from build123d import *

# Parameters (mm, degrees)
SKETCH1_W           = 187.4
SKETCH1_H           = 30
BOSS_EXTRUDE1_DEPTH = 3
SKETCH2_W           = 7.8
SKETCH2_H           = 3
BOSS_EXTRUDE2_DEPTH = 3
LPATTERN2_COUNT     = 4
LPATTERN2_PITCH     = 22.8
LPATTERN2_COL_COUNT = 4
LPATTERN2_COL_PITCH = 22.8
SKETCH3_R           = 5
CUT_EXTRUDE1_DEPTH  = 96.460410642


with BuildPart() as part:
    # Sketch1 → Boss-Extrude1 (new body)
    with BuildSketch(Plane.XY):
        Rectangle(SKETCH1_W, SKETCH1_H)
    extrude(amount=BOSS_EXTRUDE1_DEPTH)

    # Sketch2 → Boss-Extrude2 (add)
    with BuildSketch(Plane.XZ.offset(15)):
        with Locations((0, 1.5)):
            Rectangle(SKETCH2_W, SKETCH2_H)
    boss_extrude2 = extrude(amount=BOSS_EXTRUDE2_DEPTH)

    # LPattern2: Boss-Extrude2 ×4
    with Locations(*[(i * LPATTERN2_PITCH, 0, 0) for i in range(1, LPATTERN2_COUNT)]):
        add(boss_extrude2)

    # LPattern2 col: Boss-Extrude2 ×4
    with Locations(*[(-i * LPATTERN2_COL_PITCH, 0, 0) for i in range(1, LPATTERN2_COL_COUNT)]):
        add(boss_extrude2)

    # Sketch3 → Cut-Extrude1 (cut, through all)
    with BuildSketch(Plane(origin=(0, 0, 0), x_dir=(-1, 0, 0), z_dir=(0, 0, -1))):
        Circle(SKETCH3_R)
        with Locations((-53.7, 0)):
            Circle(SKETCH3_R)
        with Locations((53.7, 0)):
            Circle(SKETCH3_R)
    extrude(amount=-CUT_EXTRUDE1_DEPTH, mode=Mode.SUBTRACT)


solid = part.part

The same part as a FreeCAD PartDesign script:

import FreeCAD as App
import Part
import Sketcher

V = App.Vector


def add_polygon(sketch, points):
    """Adds a closed chain of lines whose ends are joined by coincident constraints."""
    first, n = sketch.GeometryCount, len(points)
    for a, b in zip(points, points[1:] + points[:1]):
        sketch.addGeometry(Part.LineSegment(App.Vector(*a, 0), App.Vector(*b, 0)), False)
    for i in range(n):
        sketch.addConstraint(Sketcher.Constraint("Coincident", first + i, 2, first + (i + 1) % n, 1))

doc = App.newDocument("Part")
body = doc.addObject("PartDesign::Body", "Body")

# Sketch on XY plane
sketch1 = body.newObject("Sketcher::SketchObject", "Sketch")
sketch1.AttachmentSupport = (doc.getObject("XY_Plane"), [""])
sketch1.MapMode = "FlatFace"
add_polygon(sketch1, [(-94, 15), (-94, -15), (94, -15), (94, 15)])  # lines 0-3
sketch1.addConstraint([
    Sketcher.Constraint("Vertical", 0),
    Sketcher.Constraint("Horizontal", 1),
    Sketcher.Constraint("Vertical", 2),
    Sketcher.Constraint("Horizontal", 3),
    Sketcher.Constraint("Symmetric", 0, 2, 2, 2, -1, 1),
    Sketcher.Constraint("DistanceY", 0, 2, 0, 1, 30.0),
    Sketcher.Constraint("DistanceX", 1, 1, 1, 2, 187.4),
])
pad1 = body.newObject("PartDesign::Pad", "Pad")
pad1.Profile = sketch1
pad1.Length = 3

# Sketch on XZ plane
sketch2 = body.newObject("Sketcher::SketchObject", "Sketch001")
sketch2.AttachmentSupport = (doc.getObject("XZ_Plane"), [""])
sketch2.MapMode = "FlatFace"
sketch2.AttachmentOffset = App.Placement(V(0, 0, 15), App.Rotation())
add_polygon(sketch2, [(-3.9, 3), (-3.9, 0), (3.9, 0), (3.9, 3)])  # lines 0-3
sketch2.addConstraint([
    Sketcher.Constraint("Vertical", 0),
    Sketcher.Constraint("Horizontal", 1),
    Sketcher.Constraint("Vertical", 2),
    Sketcher.Constraint("Horizontal", 3),
    Sketcher.Constraint("Symmetric", 0, 2, 1, 2, -1, 1),
    Sketcher.Constraint("DistanceY", 0, 2, 0, 1, 3.0),
    Sketcher.Constraint("DistanceX", 1, 1, 1, 2, 7.8),
])
pad2 = body.newObject("PartDesign::Pad", "Pad001")
pad2.Profile = sketch2
pad2.Length = 3
doc.recompute()

linearpattern = body.newObject("PartDesign::LinearPattern", "LinearPattern")
linearpattern.Originals = [pad2]
linearpattern.Direction = (doc.getObject("X_Axis"), [""])
linearpattern.Mode = "offset"
linearpattern.Offset = 22.8
linearpattern.Occurrences = 4
body.Tip = linearpattern
doc.recompute()

linearpattern2 = body.newObject("PartDesign::LinearPattern", "LinearPattern001")
linearpattern2.Originals = [pad2]
linearpattern2.Direction = (doc.getObject("X_Axis"), [""])
linearpattern2.Mode = "offset"
linearpattern2.Offset = 22.8
linearpattern2.Occurrences = 4
linearpattern2.Reversed = True
body.Tip = linearpattern2

# Sketch on XY plane
sketch3 = body.newObject("Sketcher::SketchObject", "Sketch002")
sketch3.AttachmentSupport = (doc.getObject("XY_Plane"), [""])
sketch3.MapMode = "FlatFace"
sketch3.addGeometry([
    Part.Circle(V(0, 0, 0), V(0, 0, 1), 5),
    Part.Circle(V(54, 0, 0), V(0, 0, 1), 5),
    Part.Circle(V(-54, 0, 0), V(0, 0, 1), 5),
], False)
sketch3.addConstraint([
    Sketcher.Constraint("Coincident", 0, 3, -1, 1),
    Sketcher.Constraint("Equal", 0, 1),
    Sketcher.Constraint("Equal", 1, 2),
    Sketcher.Constraint("Symmetric", 1, 3, 2, 3, -1, 1),
    Sketcher.Constraint("PointOnObject", 1, 3, -1),
    Sketcher.Constraint("Diameter", 0, 10.0),
    Sketcher.Constraint("DistanceX", -1, 1, 1, 3, 53.7),
])
pocket1 = body.newObject("PartDesign::Pocket", "Pocket")
pocket1.Profile = sketch3
pocket1.Type = "ThroughAll"
pocket1.Reversed = True

doc.recompute()
